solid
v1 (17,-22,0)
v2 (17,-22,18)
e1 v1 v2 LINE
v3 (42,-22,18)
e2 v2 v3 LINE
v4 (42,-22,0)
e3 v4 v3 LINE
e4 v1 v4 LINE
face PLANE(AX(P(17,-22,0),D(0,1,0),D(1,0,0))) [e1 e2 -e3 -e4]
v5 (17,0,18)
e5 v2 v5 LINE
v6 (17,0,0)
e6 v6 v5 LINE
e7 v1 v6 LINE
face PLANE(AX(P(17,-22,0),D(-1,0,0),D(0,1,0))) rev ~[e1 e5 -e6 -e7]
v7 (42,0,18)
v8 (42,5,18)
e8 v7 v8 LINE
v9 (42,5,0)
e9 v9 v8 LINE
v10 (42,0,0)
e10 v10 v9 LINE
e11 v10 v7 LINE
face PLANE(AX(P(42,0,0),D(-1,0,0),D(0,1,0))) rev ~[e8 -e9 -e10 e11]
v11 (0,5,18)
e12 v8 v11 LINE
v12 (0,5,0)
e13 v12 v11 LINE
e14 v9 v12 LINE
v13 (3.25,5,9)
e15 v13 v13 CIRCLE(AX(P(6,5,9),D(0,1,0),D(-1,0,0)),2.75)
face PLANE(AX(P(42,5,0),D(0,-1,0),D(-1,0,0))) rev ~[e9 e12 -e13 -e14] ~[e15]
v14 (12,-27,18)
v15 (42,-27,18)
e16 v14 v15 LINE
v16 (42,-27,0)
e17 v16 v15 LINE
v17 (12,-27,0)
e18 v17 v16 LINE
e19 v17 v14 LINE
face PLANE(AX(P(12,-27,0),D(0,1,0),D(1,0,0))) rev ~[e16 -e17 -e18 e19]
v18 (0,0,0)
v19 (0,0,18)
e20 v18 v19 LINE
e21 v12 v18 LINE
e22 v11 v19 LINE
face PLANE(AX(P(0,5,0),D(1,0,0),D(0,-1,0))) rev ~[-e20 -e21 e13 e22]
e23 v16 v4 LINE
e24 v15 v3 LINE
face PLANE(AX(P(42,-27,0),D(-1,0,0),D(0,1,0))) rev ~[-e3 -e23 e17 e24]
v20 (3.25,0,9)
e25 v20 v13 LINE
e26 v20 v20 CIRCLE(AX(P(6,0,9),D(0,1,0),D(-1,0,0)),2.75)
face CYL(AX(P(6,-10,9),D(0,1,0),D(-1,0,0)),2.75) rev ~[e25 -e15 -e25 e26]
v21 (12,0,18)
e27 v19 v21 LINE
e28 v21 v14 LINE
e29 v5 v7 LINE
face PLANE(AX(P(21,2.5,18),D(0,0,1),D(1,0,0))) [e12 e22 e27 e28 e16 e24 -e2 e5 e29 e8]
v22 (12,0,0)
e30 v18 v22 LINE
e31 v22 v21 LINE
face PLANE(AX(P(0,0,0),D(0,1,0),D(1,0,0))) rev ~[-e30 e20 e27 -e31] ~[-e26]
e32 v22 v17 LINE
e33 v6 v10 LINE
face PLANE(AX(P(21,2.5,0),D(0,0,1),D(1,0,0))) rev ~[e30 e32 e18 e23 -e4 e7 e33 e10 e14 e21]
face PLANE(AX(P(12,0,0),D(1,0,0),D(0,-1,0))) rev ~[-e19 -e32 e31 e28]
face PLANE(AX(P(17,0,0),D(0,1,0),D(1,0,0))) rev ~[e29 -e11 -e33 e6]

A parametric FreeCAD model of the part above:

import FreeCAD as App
import Part
import Sketcher

V = App.Vector

doc = App.newDocument("Part")
params = doc.addObject("Spreadsheet::Sheet", "Params")
for row, (alias, value) in enumerate([
    ("sketch1_width", "12 mm"),
    ("sketch1_width2", "30 mm"),
    ("sketch1_width3", "25 mm"),
    ("sketch1_height", "5 mm"),
    ("sketch1_height2", "27 mm"),
    ("pad1_length", "18 mm"),
    ("sketch2_diameter", "5.5 mm"),
    ("hole_diameter", "5.5 mm"),
    ("hole_depth", "10 mm"),
], start=1):
    params.set(f"A{row}", alias)
    params.set(f"B{row}", "=" + value)
    params.setAlias(f"B{row}", alias)

body = doc.addObject("PartDesign::Body", "Body")

# Sketch on XY plane
sketch1 = body.newObject("Sketcher::SketchObject", "Sketch")
sketch1.AttachmentSupport = (doc.getObject("XY_Plane"), [""])
sketch1.MapMode = "FlatFace"
sketch1.addGeometry(Part.LineSegment(V(0, 5, 0), V(0, 0, 0)), False)
sketch1.addGeometry(Part.LineSegment(V(0, 0, 0), V(12, 0, 0)), False)
sketch1.addGeometry(Part.LineSegment(V(12, 0, 0), V(12, -27, 0)), False)
sketch1.addGeometry(Part.LineSegment(V(12, -27, 0), V(42, -27, 0)), False)
sketch1.addGeometry(Part.LineSegment(V(42, -27, 0), V(42, -22, 0)), False)
sketch1.addGeometry(Part.LineSegment(V(42, -22, 0), V(17, -22, 0)), False)
sketch1.addGeometry(Part.LineSegment(V(17, -22, 0), V(17, 0, 0)), False)
sketch1.addGeometry(Part.LineSegment(V(17, 0, 0), V(42, 0, 0)), False)
sketch1.addGeometry(Part.LineSegment(V(42, 0, 0), V(42, 5, 0)), False)
sketch1.addGeometry(Part.LineSegment(V(42, 5, 0), V(0, 5, 0)), False)
sketch1.addConstraint(Sketcher.Constraint("Coincident", 0, 2, 1, 1))
sketch1.addConstraint(Sketcher.Constraint("Coincident", 1, 2, 2, 1))
sketch1.addConstraint(Sketcher.Constraint("Coincident", 2, 2, 3, 1))
sketch1.addConstraint(Sketcher.Constraint("Coincident", 3, 2, 4, 1))
sketch1.addConstraint(Sketcher.Constraint("Coincident", 4, 2, 5, 1))
sketch1.addConstraint(Sketcher.Constraint("Coincident", 5, 2, 6, 1))
sketch1.addConstraint(Sketcher.Constraint("Coincident", 6, 2, 7, 1))
sketch1.addConstraint(Sketcher.Constraint("Coincident", 7, 2, 8, 1))
sketch1.addConstraint(Sketcher.Constraint("Coincident", 8, 2, 9, 1))
sketch1.addConstraint(Sketcher.Constraint("Coincident", 9, 2, 0, 1))
sketch1.addConstraint(Sketcher.Constraint("Vertical", 0))
sketch1.addConstraint(Sketcher.Constraint("Horizontal", 1))
sketch1.addConstraint(Sketcher.Constraint("Vertical", 2))
sketch1.addConstraint(Sketcher.Constraint("Horizontal", 3))
sketch1.addConstraint(Sketcher.Constraint("Vertical", 4))
sketch1.addConstraint(Sketcher.Constraint("Horizontal", 5))
sketch1.addConstraint(Sketcher.Constraint("Vertical", 6))
sketch1.addConstraint(Sketcher.Constraint("Horizontal", 7))
sketch1.addConstraint(Sketcher.Constraint("Vertical", 8))
sketch1.addConstraint(Sketcher.Constraint("Horizontal", 9))
sketch1.addConstraint(Sketcher.Constraint("Coincident", 0, 2, -1, 1))
sketch1.addConstraint(Sketcher.Constraint("PointOnObject", 6, 2, -1))
sketch1.addConstraint(Sketcher.Constraint("Vertical", 4, 2, 7, 2))
sketch1.addConstraint(Sketcher.Constraint("Equal", 0, 4))
sketch1.addConstraint(Sketcher.Constraint("DistanceX", 1, 1, 1, 2, 12.0))
sketch1.addConstraint(Sketcher.Constraint("DistanceX", 3, 1, 3, 2, 30.0))
sketch1.addConstraint(Sketcher.Constraint("DistanceX", 5, 2, 5, 1, 25.0))
sketch1.addConstraint(Sketcher.Constraint("DistanceY", 0, 2, 0, 1, 5.0))
sketch1.addConstraint(Sketcher.Constraint("DistanceY", 2, 2, 2, 1, 27.0))
sketch1.setExpression("Constraints[24]", "Params.sketch1_width")
sketch1.setExpression("Constraints[25]", "Params.sketch1_width2")
sketch1.setExpression("Constraints[26]", "Params.sketch1_width3")
sketch1.setExpression("Constraints[27]", "Params.sketch1_height")
sketch1.setExpression("Constraints[28]", "Params.sketch1_height2")
pad1 = body.newObject("PartDesign::Pad", "Pad")
pad1.Profile = sketch1
pad1.setExpression("Length", "Params.pad1_length")

# Sketch on XZ plane
sketch2 = body.newObject("Sketcher::SketchObject", "Sketch001")
sketch2.AttachmentSupport = (doc.getObject("XZ_Plane"), [""])
sketch2.MapMode = "FlatFace"
sketch2.addGeometry(Part.Circle(V(6, 9, 0), V(0, 0, 1), 2.8), False)
sketch2.addConstraint(Sketcher.Constraint("Diameter", 0, 5.5))
sketch2.addConstraint(Sketcher.Constraint("DistanceX", -1, 1, 0, 3, 6.0))
sketch2.addConstraint(Sketcher.Constraint("DistanceY", -1, 1, 0, 3, 9.0))
sketch2.setExpression("Constraints[0]", "Params.sketch2_diameter")
doc.recompute()
hole = body.newObject("PartDesign::Hole", "Hole")
hole.Profile = sketch2
hole.ThreadType = "None"
hole.setExpression("Diameter", "Params.hole_diameter")
hole.DepthType = "Dimension"
hole.setExpression("Depth", "Params.hole_depth")
hole.DrillPoint = "Angled"
hole.DrillPointAngle = 118

doc.recompute()
